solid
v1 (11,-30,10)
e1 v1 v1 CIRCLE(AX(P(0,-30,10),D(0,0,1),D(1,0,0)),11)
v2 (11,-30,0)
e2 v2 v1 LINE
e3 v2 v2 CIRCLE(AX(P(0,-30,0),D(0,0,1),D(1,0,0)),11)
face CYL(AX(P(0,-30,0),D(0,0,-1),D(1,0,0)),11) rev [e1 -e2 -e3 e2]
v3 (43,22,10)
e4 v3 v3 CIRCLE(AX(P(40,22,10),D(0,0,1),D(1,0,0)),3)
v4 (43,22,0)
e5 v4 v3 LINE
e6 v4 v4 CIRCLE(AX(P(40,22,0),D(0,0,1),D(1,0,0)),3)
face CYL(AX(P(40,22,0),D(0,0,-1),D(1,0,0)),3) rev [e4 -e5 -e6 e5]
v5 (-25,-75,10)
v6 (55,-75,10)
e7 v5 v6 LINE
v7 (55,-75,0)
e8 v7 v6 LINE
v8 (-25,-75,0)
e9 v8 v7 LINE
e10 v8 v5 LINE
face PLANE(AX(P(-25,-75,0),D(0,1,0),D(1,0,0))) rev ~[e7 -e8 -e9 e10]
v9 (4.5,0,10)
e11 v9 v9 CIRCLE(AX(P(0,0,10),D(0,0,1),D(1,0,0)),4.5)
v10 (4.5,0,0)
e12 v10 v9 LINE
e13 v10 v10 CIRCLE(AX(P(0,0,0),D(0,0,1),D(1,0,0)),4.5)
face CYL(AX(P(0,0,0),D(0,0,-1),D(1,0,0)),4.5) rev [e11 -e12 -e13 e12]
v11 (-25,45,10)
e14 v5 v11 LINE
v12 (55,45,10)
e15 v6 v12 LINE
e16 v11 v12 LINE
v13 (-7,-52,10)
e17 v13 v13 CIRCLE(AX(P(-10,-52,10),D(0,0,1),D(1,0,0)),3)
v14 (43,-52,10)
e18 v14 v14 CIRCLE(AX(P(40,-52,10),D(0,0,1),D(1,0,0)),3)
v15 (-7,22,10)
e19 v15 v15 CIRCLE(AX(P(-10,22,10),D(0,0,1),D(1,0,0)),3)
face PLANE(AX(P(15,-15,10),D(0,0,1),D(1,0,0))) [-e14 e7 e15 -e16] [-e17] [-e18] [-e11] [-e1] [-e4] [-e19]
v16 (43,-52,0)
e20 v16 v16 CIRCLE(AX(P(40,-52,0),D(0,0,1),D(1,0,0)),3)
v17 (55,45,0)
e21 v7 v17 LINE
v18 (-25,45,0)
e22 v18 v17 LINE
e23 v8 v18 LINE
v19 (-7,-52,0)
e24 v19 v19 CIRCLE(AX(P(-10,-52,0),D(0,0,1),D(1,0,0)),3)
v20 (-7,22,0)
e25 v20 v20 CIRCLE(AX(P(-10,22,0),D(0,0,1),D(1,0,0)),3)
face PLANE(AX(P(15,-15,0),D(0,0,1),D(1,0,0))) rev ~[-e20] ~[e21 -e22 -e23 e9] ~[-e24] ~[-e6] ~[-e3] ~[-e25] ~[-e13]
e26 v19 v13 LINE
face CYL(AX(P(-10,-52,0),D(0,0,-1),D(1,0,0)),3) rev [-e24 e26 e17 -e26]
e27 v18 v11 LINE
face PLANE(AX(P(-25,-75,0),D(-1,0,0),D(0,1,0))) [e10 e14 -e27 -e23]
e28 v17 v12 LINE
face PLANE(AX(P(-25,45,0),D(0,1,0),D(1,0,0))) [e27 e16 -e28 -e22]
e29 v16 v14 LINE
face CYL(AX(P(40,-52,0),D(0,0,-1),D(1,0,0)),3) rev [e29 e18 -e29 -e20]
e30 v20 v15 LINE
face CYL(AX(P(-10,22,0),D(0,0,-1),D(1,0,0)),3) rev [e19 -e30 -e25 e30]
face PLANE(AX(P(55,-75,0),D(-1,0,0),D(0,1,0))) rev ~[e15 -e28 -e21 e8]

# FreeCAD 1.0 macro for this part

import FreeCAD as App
import Part
import Sketcher

V = App.Vector

doc = App.newDocument("Part")
body = doc.addObject("PartDesign::Body", "Body")

sketch1 = doc.addObject("Sketcher::SketchObject", "Sketch")
body.addObject(sketch1)
sketch1.AttachmentSupport = (doc.XY_Plane, [""])
sketch1.MapMode = "FlatFace"
sketch1.addGeometry([
    Part.LineSegment(V(-25, 45, 0), V(-25, -75, 0)),
    Part.LineSegment(V(-25, -75, 0), V(55, -75, 0)),
    Part.LineSegment(V(55, -75, 0), V(55, 45, 0)),
    Part.LineSegment(V(55, 45, 0), V(-25, 45, 0)),
    Part.Circle(V(-10, -52, 0), V(0, 0, 1), 3),
    Part.Circle(V(0, -30, 0), V(0, 0, 1), 11),
    Part.Circle(V(40, -52, 0), V(0, 0, 1), 3),
    Part.Circle(V(0, 0, 0), V(0, 0, 1), 4.5),
    Part.Circle(V(-10, 22, 0), V(0, 0, 1), 3),
    Part.Circle(V(40, 22, 0), V(0, 0, 1), 3),
], False)
sketch1.addConstraint([
    Sketcher.Constraint("Coincident", 0, 2, 1, 1),
    Sketcher.Constraint("Coincident", 1, 2, 2, 1),
    Sketcher.Constraint("Coincident", 2, 2, 3, 1),
    Sketcher.Constraint("Coincident", 3, 2, 0, 1),
    Sketcher.Constraint("Vertical", 0),
    Sketcher.Constraint("Horizontal", 1),
    Sketcher.Constraint("Vertical", 2),
    Sketcher.Constraint("Horizontal", 3),
    Sketcher.Constraint("Coincident", 7, 3, -1, 1),
    Sketcher.Constraint("Equal", 4, 6),
    Sketcher.Constraint("Equal", 6, 8),
    Sketcher.Constraint("Equal", 8, 9),
    Sketcher.Constraint("PointOnObject", 5, 3, -2),
    Sketcher.Constraint("Horizontal", 4, 3, 6, 3),
    Sketcher.Constraint("Horizontal", 8, 3, 9, 3),
    Sketcher.Constraint("Vertical", 4, 3, 8, 3),
    Sketcher.Constraint("Vertical", 6, 3, 9, 3),
    Sketcher.Constraint("Diameter", 4, 6.0),
    Sketcher.Constraint("Diameter", 5, 22.0),
    Sketcher.Constraint("Diameter", 7, 9.0),
    Sketcher.Constraint("DistanceX", 1, 1, 1, 2, 80.0),
    Sketcher.Constraint("DistanceY", 0, 2, 0, 1, 120.0),
    Sketcher.Constraint("DistanceX", 4, 3, -1, 1, 10.0),
    Sketcher.Constraint("DistanceY", 4, 3, -1, 1, 52.0),
    Sketcher.Constraint("DistanceY", 5, 3, -1, 1, 30.0),
    Sketcher.Constraint("DistanceX", -1, 1, 6, 3, 40.0),
    Sketcher.Constraint("DistanceY", -1, 1, 8, 3, 22.0),
    Sketcher.Constraint("DistanceX", 0, 2, -1, 1, 25.0),
    Sketcher.Constraint("DistanceY", 0, 2, -1, 1, 75.0),
])
pad1 = doc.addObject("PartDesign::Pad", "Pad")
body.addObject(pad1)
pad1.Profile = sketch1
pad1.Length = 10

doc.recompute()
